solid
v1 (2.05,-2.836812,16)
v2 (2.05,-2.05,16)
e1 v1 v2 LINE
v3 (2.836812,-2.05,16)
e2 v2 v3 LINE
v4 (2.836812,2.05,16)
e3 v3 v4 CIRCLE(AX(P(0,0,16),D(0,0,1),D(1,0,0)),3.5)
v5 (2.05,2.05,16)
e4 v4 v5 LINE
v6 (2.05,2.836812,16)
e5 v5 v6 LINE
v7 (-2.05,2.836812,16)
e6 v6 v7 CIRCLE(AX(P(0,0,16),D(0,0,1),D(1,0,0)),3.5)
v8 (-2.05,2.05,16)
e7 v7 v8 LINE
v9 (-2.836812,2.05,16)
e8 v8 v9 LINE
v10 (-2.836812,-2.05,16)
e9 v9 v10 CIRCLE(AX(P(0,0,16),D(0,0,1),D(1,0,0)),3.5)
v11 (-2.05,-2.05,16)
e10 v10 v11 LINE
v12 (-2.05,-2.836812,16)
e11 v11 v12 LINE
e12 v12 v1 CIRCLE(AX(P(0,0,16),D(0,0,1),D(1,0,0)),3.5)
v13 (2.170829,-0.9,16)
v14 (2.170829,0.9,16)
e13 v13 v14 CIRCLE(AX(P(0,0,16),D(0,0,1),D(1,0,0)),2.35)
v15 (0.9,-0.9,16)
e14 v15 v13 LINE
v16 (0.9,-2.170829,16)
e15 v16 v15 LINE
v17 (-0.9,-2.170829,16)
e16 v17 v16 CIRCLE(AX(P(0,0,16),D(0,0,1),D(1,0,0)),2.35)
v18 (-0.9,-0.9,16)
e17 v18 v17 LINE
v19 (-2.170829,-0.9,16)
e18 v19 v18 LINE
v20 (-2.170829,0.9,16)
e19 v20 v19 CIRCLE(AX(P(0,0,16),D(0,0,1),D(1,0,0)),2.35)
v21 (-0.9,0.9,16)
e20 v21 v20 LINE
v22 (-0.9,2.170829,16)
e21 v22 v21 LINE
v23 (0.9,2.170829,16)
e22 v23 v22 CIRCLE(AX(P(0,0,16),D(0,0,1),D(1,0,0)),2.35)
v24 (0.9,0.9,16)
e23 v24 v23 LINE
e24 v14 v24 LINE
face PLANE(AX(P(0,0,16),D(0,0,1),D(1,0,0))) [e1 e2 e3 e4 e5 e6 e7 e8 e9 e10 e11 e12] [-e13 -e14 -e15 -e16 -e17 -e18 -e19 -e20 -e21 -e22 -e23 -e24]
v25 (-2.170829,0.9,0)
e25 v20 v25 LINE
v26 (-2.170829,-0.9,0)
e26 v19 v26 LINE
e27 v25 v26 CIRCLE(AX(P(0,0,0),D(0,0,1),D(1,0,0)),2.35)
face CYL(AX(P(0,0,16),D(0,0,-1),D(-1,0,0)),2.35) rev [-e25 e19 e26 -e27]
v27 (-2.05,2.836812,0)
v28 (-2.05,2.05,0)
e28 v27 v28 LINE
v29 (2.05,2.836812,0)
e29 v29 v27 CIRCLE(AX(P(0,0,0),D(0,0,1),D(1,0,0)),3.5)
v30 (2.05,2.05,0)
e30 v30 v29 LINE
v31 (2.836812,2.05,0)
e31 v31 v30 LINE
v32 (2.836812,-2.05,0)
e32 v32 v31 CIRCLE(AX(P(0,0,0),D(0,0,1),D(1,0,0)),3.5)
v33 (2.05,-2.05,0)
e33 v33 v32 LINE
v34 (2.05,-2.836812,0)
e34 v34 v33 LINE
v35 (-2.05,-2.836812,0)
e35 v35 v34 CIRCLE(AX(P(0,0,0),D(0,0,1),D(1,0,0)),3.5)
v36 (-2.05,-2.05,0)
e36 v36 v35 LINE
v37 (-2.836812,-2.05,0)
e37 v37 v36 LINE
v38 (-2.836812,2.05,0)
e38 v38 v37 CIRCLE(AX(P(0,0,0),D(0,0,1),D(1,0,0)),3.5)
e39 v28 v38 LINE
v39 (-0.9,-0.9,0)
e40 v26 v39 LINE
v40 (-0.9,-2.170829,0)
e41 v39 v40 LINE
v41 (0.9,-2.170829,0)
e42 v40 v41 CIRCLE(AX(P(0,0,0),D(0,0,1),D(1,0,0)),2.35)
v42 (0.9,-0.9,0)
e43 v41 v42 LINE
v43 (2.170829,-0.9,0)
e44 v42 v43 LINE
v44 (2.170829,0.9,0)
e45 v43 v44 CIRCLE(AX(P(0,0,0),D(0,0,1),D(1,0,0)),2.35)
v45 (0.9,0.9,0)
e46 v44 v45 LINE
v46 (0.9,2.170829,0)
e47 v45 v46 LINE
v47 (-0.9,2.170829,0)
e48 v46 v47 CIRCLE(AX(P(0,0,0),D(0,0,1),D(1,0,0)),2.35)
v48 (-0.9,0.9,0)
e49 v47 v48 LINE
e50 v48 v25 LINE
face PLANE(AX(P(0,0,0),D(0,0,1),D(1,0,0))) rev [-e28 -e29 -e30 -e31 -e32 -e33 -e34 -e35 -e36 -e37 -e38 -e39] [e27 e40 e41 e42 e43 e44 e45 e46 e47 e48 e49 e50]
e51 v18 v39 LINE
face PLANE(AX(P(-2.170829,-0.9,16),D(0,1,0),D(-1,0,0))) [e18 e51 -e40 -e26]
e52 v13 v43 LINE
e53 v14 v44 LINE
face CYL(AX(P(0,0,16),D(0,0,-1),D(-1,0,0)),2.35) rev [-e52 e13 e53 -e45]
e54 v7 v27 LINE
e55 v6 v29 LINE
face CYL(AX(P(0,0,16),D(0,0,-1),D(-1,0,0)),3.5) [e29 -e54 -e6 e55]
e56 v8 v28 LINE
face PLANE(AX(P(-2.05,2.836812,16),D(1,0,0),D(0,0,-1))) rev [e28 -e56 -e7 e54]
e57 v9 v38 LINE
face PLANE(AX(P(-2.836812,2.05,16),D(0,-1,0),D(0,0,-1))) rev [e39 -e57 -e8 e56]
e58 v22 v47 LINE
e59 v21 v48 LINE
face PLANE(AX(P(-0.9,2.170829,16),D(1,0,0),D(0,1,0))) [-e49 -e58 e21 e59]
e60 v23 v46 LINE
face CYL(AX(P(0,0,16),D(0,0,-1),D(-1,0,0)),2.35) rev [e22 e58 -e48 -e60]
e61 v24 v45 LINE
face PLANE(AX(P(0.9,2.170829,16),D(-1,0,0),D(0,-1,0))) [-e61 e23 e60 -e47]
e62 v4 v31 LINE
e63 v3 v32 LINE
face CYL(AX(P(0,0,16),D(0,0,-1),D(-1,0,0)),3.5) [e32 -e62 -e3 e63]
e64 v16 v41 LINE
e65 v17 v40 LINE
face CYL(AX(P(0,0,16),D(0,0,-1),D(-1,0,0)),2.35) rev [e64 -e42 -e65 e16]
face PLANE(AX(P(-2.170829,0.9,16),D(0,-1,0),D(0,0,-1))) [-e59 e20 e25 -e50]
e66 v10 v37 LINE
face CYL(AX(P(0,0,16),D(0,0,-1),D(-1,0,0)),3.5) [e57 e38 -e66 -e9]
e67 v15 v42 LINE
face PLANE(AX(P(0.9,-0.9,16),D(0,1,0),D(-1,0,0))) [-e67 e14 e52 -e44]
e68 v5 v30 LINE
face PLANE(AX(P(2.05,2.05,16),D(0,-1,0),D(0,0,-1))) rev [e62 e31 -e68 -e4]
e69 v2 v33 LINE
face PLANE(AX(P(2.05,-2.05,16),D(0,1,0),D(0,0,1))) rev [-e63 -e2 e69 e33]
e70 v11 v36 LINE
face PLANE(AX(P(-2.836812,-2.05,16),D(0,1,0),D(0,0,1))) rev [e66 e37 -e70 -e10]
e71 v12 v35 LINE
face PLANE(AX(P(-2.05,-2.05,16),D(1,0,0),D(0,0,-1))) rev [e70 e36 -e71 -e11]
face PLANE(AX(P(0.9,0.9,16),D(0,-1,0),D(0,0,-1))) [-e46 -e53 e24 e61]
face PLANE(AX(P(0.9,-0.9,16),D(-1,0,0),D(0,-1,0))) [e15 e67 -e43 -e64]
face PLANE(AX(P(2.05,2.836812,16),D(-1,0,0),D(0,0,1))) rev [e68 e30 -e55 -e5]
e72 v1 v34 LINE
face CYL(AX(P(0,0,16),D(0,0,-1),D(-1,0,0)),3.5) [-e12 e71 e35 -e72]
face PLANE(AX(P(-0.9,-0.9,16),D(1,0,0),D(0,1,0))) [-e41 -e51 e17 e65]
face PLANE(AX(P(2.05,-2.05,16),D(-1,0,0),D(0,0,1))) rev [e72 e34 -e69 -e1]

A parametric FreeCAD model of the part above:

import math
import FreeCAD as App
import Part
import Sketcher
from FreeCAD import Vector
Q = App.Units.Quantity

doc = App.newDocument("Part")
params = doc.addObject("Spreadsheet::Sheet", "Params")
for row, (alias, value) in enumerate([
    ("sketch1_radius", "3.5 mm"),
    ("sketch1_radius2", "2.35 mm"),
    ("pad1_length", "16 mm"),
], start=1):
    params.set(f"A{row}", alias)
    params.set(f"B{row}", "=" + value)
    params.setAlias(f"B{row}", alias)

body = doc.addObject("PartDesign::Body", "Body")

# Sketch on XY plane
sketch1 = body.newObject("Sketcher::SketchObject", "Sketch")
sketch1.AttachmentSupport = (doc.getObject("XY_Plane"), [""])
sketch1.MapMode = "FlatFace"
sketch1.addGeometry(Part.LineSegment(Vector(-2, 2.8, 0), Vector(-2, 2, 0)), False)
sketch1.addGeometry(Part.LineSegment(Vector(-2, 2, 0), Vector(-2.8, 2, 0)), False)
sketch1.addGeometry(Part.ArcOfCircle(Part.Circle(Vector(0, 0, 0), Vector(0, 0, 1), 3.5), math.radians(144), math.radians(216)), False)
sketch1.addGeometry(Part.LineSegment(Vector(-2.8, -2, 0), Vector(-2, -2, 0)), False)
sketch1.addGeometry(Part.LineSegment(Vector(-2, -2, 0), Vector(-2, -2.8, 0)), False)
sketch1.addGeometry(Part.ArcOfCircle(Part.Circle(Vector(0, 0, 0), Vector(0, 0, 1), 3.5), math.radians(-126), math.radians(-54)), False)
sketch1.addGeometry(Part.LineSegment(Vector(2, -2.8, 0), Vector(2, -2, 0)), False)
sketch1.addGeometry(Part.LineSegment(Vector(2, -2, 0), Vector(2.8, -2, 0)), False)
sketch1.addGeometry(Part.ArcOfCircle(Part.Circle(Vector(0, 0, 0), Vector(0, 0, 1), 3.5), math.radians(-36), math.radians(36)), False)
sketch1.addGeometry(Part.LineSegment(Vector(2.8, 2, 0), Vector(2, 2, 0)), False)
sketch1.addGeometry(Part.LineSegment(Vector(2, 2, 0), Vector(2, 2.8, 0)), False)
sketch1.addGeometry(Part.ArcOfCircle(Part.Circle(Vector(0, 0, 0), Vector(0, 0, 1), 3.5), math.radians(54), math.radians(126)), False)
sketch1.addGeometry(Part.LineSegment(Vector(-0.9, 0.9, 0), Vector(-0.9, 2.2, 0)), False)
sketch1.addGeometry(Part.ArcOfCircle(Part.Circle(Vector(0, 0, 0), Vector(0, 0, 1), 2.4), math.radians(67), math.radians(113)), False)
sketch1.addGeometry(Part.LineSegment(Vector(0.9, 2.2, 0), Vector(0.9, 0.9, 0)), False)
sketch1.addGeometry(Part.LineSegment(Vector(0.9, 0.9, 0), Vector(2.2, 0.9, 0)), False)
sketch1.addGeometry(Part.ArcOfCircle(Part.Circle(Vector(0, 0, 0), Vector(0, 0, 1), 2.4), math.radians(-23), math.radians(23)), False)
sketch1.addGeometry(Part.LineSegment(Vector(2.2, -0.9, 0), Vector(0.9, -0.9, 0)), False)
sketch1.addGeometry(Part.LineSegment(Vector(0.9, -0.9, 0), Vector(0.9, -2.2, 0)), False)
sketch1.addGeometry(Part.ArcOfCircle(Part.Circle(Vector(0, 0, 0), Vector(0, 0, 1), 2.4), math.radians(-113), math.radians(-67)), False)
sketch1.addGeometry(Part.LineSegment(Vector(-0.9, -2.2, 0), Vector(-0.9, -0.9, 0)), False)
sketch1.addGeometry(Part.LineSegment(Vector(-0.9, -0.9, 0), Vector(-2.2, -0.9, 0)), False)
sketch1.addGeometry(Part.ArcOfCircle(Part.Circle(Vector(0, 0, 0), Vector(0, 0, 1), 2.4), math.radians(157), math.radians(203)), False)
sketch1.addGeometry(Part.LineSegment(Vector(-2.2, 0.9, 0), Vector(-0.9, 0.9, 0)), False)
sketch1.addConstraint(Sketcher.Constraint("Coincident", 0, 2, 1, 1))
sketch1.addConstraint(Sketcher.Constraint("Coincident", 1, 2, 2, 1))
sketch1.addConstraint(Sketcher.Constraint("Coincident", 2, 2, 3, 1))
sketch1.addConstraint(Sketcher.Constraint("Coincident", 3, 2, 4, 1))
sketch1.addConstraint(Sketcher.Constraint("Coincident", 4, 2, 5, 1))
sketch1.addConstraint(Sketcher.Constraint("Coincident", 5, 2, 6, 1))
sketch1.addConstraint(Sketcher.Constraint("Coincident", 6, 2, 7, 1))
sketch1.addConstraint(Sketcher.Constraint("Coincident", 7, 2, 8, 1))
sketch1.addConstraint(Sketcher.Constraint("Coincident", 8, 2, 9, 1))
sketch1.addConstraint(Sketcher.Constraint("Coincident", 9, 2, 10, 1))
sketch1.addConstraint(Sketcher.Constraint("Coincident", 10, 2, 11, 1))
sketch1.addConstraint(Sketcher.Constraint("Coincident", 11, 2, 0, 1))
sketch1.addConstraint(Sketcher.Constraint("Coincident", 12, 2, 13, 2))
sketch1.addConstraint(Sketcher.Constraint("Coincident", 13, 1, 14, 1))
sketch1.addConstraint(Sketcher.Constraint("Coincident", 14, 2, 15, 1))
sketch1.addConstraint(Sketcher.Constraint("Coincident", 15, 2, 16, 2))
sketch1.addConstraint(Sketcher.Constraint("Coincident", 16, 1, 17, 1))
sketch1.addConstraint(Sketcher.Constraint("Coincident", 17, 2, 18, 1))
sketch1.addConstraint(Sketcher.Constraint("Coincident", 18, 2, 19, 2))
sketch1.addConstraint(Sketcher.Constraint("Coincident", 19, 1, 20, 1))
sketch1.addConstraint(Sketcher.Constraint("Coincident", 20, 2, 21, 1))
sketch1.addConstraint(Sketcher.Constraint("Coincident", 21, 2, 22, 2))
sketch1.addConstraint(Sketcher.Constraint("Coincident", 22, 1, 23, 1))
sketch1.addConstraint(Sketcher.Constraint("Coincident", 23, 2, 12, 1))
sketch1.addConstraint(Sketcher.Constraint("Vertical", 0))
sketch1.addConstraint(Sketcher.Constraint("Horizontal", 1))
sketch1.addConstraint(Sketcher.Constraint("Horizontal", 3))
sketch1.addConstraint(Sketcher.Constraint("Vertical", 4))
sketch1.addConstraint(Sketcher.Constraint("Vertical", 6))
sketch1.addConstraint(Sketcher.Constraint("Horizontal", 7))
sketch1.addConstraint(Sketcher.Constraint("Horizontal", 9))
sketch1.addConstraint(Sketcher.Constraint("Vertical", 10))
sketch1.addConstraint(Sketcher.Constraint("Vertical", 12))
sketch1.addConstraint(Sketcher.Constraint("Vertical", 14))
sketch1.addConstraint(Sketcher.Constraint("Horizontal", 15))
sketch1.addConstraint(Sketcher.Constraint("Horizontal", 17))
sketch1.addConstraint(Sketcher.Constraint("Vertical", 18))
sketch1.addConstraint(Sketcher.Constraint("Vertical", 20))
sketch1.addConstraint(Sketcher.Constraint("Horizontal", 21))
sketch1.addConstraint(Sketcher.Constraint("Horizontal", 23))
sketch1.addConstraint(Sketcher.Constraint("Coincident", 2, 3, -1, 1))
sketch1.addConstraint(Sketcher.Constraint("Coincident", 5, 3, -1, 1))
sketch1.addConstraint(Sketcher.Constraint("Coincident", 8, 3, -1, 1))
sketch1.addConstraint(Sketcher.Constraint("Coincident", 11, 3, -1, 1))
sketch1.addConstraint(Sketcher.Constraint("Coincident", 13, 3, -1, 1))
sketch1.addConstraint(Sketcher.Constraint("Coincident", 16, 3, -1, 1))
sketch1.addConstraint(Sketcher.Constraint("Coincident", 19, 3, -1, 1))
sketch1.addConstraint(Sketcher.Constraint("Coincident", 22, 3, -1, 1))
sketch1.addConstraint(Sketcher.Constraint("Equal", 2, 5))
sketch1.addConstraint(Sketcher.Constraint("Equal", 5, 8))
sketch1.addConstraint(Sketcher.Constraint("Equal", 8, 11))
sketch1.addConstraint(Sketcher.Constraint("Equal", 13, 16))
sketch1.addConstraint(Sketcher.Constraint("Equal", 16, 19))
sketch1.addConstraint(Sketcher.Constraint("Equal", 19, 22))
sketch1.addConstraint(Sketcher.Constraint("Symmetric", 0, 2, 6, 2, -1, 1))
sketch1.addConstraint(Sketcher.Constraint("Symmetric", 3, 2, 9, 2, -1, 1))
sketch1.addConstraint(Sketcher.Constraint("Symmetric", 14, 2, 20, 2, -1, 1))
sketch1.addConstraint(Sketcher.Constraint("Symmetric", 17, 2, 23, 2, -1, 1))
sketch1.addConstraint(Sketcher.Constraint("Symmetric", 3, 2, 6, 2, -2))
sketch1.addConstraint(Sketcher.Constraint("Symmetric", 17, 2, 20, 2, -2))
sketch1.addConstraint(Sketcher.Constraint("Equal", 9, 0))
sketch1.addConstraint(Sketcher.Constraint("Equal", 23, 12))
sketch1.addConstraint(Sketcher.Constraint("Radius", 2, Q("3.5 mm")))
sketch1.addConstraint(Sketcher.Constraint("Radius", 13, Q("2.35 mm")))
sketch1.addConstraint(Sketcher.Constraint("DistanceX", 12, 2, -1, 1, Q("0.9 mm")))
sketch1.addConstraint(Sketcher.Constraint("DistanceX", 0, 2, -1, 1, Q("2.05 mm")))
sketch1.setExpression("Constraints[62]", "Params.sketch1_radius")
sketch1.setExpression("Constraints[63]", "Params.sketch1_radius2")
pad1 = body.newObject("PartDesign::Pad", "Pad")
pad1.Profile = sketch1
pad1.setExpression("Length", "Params.pad1_length")

doc.recompute()
